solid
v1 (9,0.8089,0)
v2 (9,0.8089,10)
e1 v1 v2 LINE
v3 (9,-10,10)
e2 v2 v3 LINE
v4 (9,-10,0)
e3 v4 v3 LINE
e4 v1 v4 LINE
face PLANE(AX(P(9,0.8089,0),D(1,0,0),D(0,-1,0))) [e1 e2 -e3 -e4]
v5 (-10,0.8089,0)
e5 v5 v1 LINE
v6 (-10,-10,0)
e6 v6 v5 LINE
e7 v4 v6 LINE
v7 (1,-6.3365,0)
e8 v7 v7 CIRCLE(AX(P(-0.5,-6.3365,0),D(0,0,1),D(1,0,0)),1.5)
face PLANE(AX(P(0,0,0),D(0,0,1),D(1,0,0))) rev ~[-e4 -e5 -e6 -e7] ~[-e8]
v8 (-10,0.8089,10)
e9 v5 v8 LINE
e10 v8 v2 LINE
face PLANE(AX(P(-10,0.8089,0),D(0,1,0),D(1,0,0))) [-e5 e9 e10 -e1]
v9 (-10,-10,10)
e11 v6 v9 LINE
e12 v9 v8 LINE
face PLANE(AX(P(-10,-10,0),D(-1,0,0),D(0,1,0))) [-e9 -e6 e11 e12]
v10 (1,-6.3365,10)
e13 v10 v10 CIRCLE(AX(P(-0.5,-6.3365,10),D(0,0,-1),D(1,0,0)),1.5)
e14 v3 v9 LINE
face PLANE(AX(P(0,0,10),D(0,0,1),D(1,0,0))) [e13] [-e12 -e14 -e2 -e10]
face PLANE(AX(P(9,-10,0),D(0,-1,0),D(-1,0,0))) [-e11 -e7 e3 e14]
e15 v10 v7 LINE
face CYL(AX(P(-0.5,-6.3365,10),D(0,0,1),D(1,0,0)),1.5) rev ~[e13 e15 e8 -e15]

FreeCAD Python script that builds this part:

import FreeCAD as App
import Part
import Sketcher

doc = App.newDocument("Part")
params = doc.addObject("Spreadsheet::Sheet", "Params")
for row, (alias, value) in enumerate([
    ("sketch1_width", "19 mm"),
    ("pad1_length", "10 mm"),
    ("sketch2_diameter", "3 mm"),
    ("pocket1_length", "10 mm"),
], start=1):
    params.set(f"A{row}", alias)
    params.set(f"B{row}", "=" + value)
    params.setAlias(f"B{row}", alias)

body = doc.addObject("PartDesign::Body", "Body")

sketch1 = body.newObject("Sketcher::SketchObject", "Sketch")
sketch1.AttachmentSupport = (doc.getObject("XY_Plane"), [""])
sketch1.MapMode = "FlatFace"
sketch1.addGeometry([
    Part.LineSegment(App.Vector(9, 1, 0), App.Vector(-10, 1, 0)),
    Part.LineSegment(App.Vector(-10, 1, 0), App.Vector(-10, -10, 0)),
    Part.LineSegment(App.Vector(-10, -10, 0), App.Vector(9, -10, 0)),
    Part.LineSegment(App.Vector(9, -10, 0), App.Vector(9, 1, 0)),
], False)
sketch1.addConstraint([
    Sketcher.Constraint("Coincident", 0, 2, 1, 1),
    Sketcher.Constraint("Coincident", 1, 2, 2, 1),
    Sketcher.Constraint("Coincident", 2, 2, 3, 1),
    Sketcher.Constraint("Coincident", 3, 2, 0, 1),
    Sketcher.Constraint("Horizontal", 0),
    Sketcher.Constraint("Vertical", 1),
    Sketcher.Constraint("Horizontal", 2),
    Sketcher.Constraint("Vertical", 3),
    Sketcher.Constraint("DistanceX", 0, 2, 0, 1, 19.0),
    Sketcher.Constraint("DistanceX", 0, 2, -1, 1, 10.0),
    Sketcher.Constraint("DistanceY", 1, 2, -1, 1, 10.0),
    Sketcher.Constraint("DistanceY", 1, 2, 1, 1, 10.809),
])
sketch1.setExpression("Constraints[8]", "Params.sketch1_width")
pad1 = body.newObject("PartDesign::Pad", "Pad")
pad1.Profile = sketch1
pad1.setExpression("Length", "Params.pad1_length")

sketch2 = body.newObject("Sketcher::SketchObject", "Sketch001")
sketch2.AttachmentSupport = (doc.getObject("XY_Plane"), [""])
sketch2.MapMode = "FlatFace"
sketch2.AttachmentOffset = App.Placement(App.Vector(0, 0, 10), App.Rotation())
sketch2.addGeometry(Part.Circle(App.Vector(-0.5, -6.3, 0), App.Vector(0, 0, 1), 1.5), False)
sketch2.addConstraint([
    Sketcher.Constraint("Diameter", 0, 3.0),
    Sketcher.Constraint("DistanceX", 0, 3, -1, 1, 0.5),
    Sketcher.Constraint("DistanceY", 0, 3, -1, 1, 6.3365),
])
sketch2.setExpression("Constraints[0]", "Params.sketch2_diameter")
pocket1 = body.newObject("PartDesign::Pocket", "Pocket")
pocket1.Profile = sketch2
pocket1.setExpression("Length", "Params.pocket1_length")

doc.recompute()
